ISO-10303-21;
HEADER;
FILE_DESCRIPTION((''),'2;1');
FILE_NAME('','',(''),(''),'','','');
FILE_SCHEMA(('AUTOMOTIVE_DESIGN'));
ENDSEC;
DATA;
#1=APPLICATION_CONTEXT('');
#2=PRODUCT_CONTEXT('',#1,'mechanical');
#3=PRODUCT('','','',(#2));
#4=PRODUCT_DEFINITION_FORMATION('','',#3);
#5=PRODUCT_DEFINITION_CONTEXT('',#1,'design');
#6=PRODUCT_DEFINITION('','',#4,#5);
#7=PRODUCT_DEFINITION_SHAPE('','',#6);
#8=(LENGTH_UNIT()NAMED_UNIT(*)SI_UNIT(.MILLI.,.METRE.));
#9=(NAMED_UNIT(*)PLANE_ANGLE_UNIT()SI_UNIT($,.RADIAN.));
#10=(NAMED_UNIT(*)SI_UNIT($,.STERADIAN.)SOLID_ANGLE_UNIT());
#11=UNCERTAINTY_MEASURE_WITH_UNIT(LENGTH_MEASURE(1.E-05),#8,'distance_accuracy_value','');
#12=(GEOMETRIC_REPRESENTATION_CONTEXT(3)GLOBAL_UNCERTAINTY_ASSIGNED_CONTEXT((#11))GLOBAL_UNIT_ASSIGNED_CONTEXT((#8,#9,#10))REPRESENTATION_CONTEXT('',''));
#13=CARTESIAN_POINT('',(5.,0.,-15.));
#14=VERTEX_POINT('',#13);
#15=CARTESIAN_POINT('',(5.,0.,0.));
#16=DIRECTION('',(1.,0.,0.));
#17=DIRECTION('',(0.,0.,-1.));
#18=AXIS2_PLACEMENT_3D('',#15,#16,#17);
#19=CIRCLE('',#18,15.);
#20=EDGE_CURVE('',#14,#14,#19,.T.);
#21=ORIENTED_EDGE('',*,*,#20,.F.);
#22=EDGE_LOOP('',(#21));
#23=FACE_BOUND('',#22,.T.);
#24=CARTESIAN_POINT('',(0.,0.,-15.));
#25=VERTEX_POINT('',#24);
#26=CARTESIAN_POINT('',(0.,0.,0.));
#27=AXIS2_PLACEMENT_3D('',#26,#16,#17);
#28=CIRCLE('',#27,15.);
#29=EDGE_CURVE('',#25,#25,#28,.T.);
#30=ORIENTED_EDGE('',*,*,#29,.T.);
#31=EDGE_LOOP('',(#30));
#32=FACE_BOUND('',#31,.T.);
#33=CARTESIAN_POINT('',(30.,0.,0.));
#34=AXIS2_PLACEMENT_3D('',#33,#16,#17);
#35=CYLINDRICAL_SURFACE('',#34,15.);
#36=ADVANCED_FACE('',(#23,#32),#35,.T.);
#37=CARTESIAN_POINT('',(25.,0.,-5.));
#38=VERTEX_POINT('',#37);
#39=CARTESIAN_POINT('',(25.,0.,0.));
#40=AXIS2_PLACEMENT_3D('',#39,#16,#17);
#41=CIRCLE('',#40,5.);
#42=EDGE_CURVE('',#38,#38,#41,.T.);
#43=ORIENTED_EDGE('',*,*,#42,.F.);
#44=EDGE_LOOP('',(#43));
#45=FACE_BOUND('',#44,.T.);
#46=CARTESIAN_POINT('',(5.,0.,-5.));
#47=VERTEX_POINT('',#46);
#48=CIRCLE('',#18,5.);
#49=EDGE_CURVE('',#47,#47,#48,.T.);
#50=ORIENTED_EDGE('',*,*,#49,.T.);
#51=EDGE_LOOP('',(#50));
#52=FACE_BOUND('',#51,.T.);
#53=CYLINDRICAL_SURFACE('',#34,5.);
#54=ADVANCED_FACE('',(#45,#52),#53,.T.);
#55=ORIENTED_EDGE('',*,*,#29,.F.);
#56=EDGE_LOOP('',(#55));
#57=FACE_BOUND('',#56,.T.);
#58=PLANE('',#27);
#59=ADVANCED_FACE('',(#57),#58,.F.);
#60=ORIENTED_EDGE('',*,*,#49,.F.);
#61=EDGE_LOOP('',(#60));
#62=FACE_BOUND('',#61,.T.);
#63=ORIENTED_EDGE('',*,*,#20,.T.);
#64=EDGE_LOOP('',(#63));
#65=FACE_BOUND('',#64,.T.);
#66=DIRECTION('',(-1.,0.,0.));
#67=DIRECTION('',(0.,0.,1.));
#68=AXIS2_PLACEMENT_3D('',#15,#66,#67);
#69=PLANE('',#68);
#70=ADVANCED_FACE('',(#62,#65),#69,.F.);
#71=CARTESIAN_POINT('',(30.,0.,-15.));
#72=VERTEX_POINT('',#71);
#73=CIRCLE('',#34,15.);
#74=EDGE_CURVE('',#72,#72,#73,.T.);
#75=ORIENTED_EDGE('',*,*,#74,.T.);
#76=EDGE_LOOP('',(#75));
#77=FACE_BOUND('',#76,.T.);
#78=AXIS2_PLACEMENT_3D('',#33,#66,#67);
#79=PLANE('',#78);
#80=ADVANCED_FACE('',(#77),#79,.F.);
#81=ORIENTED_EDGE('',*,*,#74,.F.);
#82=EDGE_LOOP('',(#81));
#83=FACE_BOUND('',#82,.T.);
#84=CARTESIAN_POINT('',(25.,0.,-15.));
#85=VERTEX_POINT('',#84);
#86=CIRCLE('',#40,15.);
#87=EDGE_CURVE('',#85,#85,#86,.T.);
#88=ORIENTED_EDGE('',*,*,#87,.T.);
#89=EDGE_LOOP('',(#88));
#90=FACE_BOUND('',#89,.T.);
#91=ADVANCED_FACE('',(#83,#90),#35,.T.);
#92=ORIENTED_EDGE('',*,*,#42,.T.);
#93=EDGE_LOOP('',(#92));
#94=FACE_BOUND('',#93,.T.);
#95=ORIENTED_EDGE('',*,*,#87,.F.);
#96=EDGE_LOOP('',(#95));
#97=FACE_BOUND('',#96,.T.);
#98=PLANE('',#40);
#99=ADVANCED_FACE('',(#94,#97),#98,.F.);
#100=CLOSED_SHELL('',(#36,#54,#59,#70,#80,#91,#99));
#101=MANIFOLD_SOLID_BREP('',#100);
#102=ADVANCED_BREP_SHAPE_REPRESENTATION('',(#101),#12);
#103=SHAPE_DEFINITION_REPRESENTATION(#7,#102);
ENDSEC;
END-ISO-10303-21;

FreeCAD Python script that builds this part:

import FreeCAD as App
import Part
import Sketcher

V = App.Vector

doc = App.newDocument("Part")
body = doc.addObject("PartDesign::Body", "Body")

sketch1 = body.newObject("Sketcher::SketchObject", "Sketch")
sketch1.AttachmentSupport = (doc.getObject("XY_Plane"), [""])
sketch1.MapMode = "FlatFace"
sketch1.addGeometry([
    Part.LineSegment(V(0, 15, 0), V(0, 0, 0)),
    Part.LineSegment(V(0, 0, 0), V(30, 0, 0)),
    Part.LineSegment(V(30, 0, 0), V(30, 15, 0)),
    Part.LineSegment(V(30, 15, 0), V(25, 15, 0)),
    Part.LineSegment(V(25, 15, 0), V(25, 5, 0)),
    Part.LineSegment(V(25, 5, 0), V(5, 5, 0)),
    Part.LineSegment(V(5, 5, 0), V(5, 15, 0)),
    Part.LineSegment(V(5, 15, 0), V(0, 15, 0)),
], False)
sketch1.addConstraint([
    Sketcher.Constraint("Coincident", 0, 2, 1, 1),
    Sketcher.Constraint("Coincident", 1, 2, 2, 1),
    Sketcher.Constraint("Coincident", 2, 2, 3, 1),
    Sketcher.Constraint("Coincident", 3, 2, 4, 1),
    Sketcher.Constraint("Coincident", 4, 2, 5, 1),
    Sketcher.Constraint("Coincident", 5, 2, 6, 1),
    Sketcher.Constraint("Coincident", 6, 2, 7, 1),
    Sketcher.Constraint("Coincident", 7, 2, 0, 1),
    Sketcher.Constraint("Vertical", 0),
    Sketcher.Constraint("Horizontal", 1),
    Sketcher.Constraint("Vertical", 2),
    Sketcher.Constraint("Horizontal", 3),
    Sketcher.Constraint("Vertical", 4),
    Sketcher.Constraint("Horizontal", 5),
    Sketcher.Constraint("Vertical", 6),
    Sketcher.Constraint("Horizontal", 7),
    Sketcher.Constraint("Coincident", 0, 2, -1, 1),
    Sketcher.Constraint("Horizontal", 3, 2, 6, 2),
    Sketcher.Constraint("Equal", 3, 7),
    Sketcher.Constraint("DistanceX", 1, 1, 1, 2, 30.0),
    Sketcher.Constraint("DistanceX", 3, 2, 3, 1, 5.0),
    Sketcher.Constraint("DistanceY", 0, 2, 0, 1, 15.0),
    Sketcher.Constraint("DistanceY", 4, 2, 4, 1, 10.0),
])
revolution = body.newObject("PartDesign::Revolution", "Revolution")
revolution.Profile = sketch1
revolution.ReferenceAxis = (sketch1, ["H_Axis"])
revolution.Angle = 360

doc.recompute()
